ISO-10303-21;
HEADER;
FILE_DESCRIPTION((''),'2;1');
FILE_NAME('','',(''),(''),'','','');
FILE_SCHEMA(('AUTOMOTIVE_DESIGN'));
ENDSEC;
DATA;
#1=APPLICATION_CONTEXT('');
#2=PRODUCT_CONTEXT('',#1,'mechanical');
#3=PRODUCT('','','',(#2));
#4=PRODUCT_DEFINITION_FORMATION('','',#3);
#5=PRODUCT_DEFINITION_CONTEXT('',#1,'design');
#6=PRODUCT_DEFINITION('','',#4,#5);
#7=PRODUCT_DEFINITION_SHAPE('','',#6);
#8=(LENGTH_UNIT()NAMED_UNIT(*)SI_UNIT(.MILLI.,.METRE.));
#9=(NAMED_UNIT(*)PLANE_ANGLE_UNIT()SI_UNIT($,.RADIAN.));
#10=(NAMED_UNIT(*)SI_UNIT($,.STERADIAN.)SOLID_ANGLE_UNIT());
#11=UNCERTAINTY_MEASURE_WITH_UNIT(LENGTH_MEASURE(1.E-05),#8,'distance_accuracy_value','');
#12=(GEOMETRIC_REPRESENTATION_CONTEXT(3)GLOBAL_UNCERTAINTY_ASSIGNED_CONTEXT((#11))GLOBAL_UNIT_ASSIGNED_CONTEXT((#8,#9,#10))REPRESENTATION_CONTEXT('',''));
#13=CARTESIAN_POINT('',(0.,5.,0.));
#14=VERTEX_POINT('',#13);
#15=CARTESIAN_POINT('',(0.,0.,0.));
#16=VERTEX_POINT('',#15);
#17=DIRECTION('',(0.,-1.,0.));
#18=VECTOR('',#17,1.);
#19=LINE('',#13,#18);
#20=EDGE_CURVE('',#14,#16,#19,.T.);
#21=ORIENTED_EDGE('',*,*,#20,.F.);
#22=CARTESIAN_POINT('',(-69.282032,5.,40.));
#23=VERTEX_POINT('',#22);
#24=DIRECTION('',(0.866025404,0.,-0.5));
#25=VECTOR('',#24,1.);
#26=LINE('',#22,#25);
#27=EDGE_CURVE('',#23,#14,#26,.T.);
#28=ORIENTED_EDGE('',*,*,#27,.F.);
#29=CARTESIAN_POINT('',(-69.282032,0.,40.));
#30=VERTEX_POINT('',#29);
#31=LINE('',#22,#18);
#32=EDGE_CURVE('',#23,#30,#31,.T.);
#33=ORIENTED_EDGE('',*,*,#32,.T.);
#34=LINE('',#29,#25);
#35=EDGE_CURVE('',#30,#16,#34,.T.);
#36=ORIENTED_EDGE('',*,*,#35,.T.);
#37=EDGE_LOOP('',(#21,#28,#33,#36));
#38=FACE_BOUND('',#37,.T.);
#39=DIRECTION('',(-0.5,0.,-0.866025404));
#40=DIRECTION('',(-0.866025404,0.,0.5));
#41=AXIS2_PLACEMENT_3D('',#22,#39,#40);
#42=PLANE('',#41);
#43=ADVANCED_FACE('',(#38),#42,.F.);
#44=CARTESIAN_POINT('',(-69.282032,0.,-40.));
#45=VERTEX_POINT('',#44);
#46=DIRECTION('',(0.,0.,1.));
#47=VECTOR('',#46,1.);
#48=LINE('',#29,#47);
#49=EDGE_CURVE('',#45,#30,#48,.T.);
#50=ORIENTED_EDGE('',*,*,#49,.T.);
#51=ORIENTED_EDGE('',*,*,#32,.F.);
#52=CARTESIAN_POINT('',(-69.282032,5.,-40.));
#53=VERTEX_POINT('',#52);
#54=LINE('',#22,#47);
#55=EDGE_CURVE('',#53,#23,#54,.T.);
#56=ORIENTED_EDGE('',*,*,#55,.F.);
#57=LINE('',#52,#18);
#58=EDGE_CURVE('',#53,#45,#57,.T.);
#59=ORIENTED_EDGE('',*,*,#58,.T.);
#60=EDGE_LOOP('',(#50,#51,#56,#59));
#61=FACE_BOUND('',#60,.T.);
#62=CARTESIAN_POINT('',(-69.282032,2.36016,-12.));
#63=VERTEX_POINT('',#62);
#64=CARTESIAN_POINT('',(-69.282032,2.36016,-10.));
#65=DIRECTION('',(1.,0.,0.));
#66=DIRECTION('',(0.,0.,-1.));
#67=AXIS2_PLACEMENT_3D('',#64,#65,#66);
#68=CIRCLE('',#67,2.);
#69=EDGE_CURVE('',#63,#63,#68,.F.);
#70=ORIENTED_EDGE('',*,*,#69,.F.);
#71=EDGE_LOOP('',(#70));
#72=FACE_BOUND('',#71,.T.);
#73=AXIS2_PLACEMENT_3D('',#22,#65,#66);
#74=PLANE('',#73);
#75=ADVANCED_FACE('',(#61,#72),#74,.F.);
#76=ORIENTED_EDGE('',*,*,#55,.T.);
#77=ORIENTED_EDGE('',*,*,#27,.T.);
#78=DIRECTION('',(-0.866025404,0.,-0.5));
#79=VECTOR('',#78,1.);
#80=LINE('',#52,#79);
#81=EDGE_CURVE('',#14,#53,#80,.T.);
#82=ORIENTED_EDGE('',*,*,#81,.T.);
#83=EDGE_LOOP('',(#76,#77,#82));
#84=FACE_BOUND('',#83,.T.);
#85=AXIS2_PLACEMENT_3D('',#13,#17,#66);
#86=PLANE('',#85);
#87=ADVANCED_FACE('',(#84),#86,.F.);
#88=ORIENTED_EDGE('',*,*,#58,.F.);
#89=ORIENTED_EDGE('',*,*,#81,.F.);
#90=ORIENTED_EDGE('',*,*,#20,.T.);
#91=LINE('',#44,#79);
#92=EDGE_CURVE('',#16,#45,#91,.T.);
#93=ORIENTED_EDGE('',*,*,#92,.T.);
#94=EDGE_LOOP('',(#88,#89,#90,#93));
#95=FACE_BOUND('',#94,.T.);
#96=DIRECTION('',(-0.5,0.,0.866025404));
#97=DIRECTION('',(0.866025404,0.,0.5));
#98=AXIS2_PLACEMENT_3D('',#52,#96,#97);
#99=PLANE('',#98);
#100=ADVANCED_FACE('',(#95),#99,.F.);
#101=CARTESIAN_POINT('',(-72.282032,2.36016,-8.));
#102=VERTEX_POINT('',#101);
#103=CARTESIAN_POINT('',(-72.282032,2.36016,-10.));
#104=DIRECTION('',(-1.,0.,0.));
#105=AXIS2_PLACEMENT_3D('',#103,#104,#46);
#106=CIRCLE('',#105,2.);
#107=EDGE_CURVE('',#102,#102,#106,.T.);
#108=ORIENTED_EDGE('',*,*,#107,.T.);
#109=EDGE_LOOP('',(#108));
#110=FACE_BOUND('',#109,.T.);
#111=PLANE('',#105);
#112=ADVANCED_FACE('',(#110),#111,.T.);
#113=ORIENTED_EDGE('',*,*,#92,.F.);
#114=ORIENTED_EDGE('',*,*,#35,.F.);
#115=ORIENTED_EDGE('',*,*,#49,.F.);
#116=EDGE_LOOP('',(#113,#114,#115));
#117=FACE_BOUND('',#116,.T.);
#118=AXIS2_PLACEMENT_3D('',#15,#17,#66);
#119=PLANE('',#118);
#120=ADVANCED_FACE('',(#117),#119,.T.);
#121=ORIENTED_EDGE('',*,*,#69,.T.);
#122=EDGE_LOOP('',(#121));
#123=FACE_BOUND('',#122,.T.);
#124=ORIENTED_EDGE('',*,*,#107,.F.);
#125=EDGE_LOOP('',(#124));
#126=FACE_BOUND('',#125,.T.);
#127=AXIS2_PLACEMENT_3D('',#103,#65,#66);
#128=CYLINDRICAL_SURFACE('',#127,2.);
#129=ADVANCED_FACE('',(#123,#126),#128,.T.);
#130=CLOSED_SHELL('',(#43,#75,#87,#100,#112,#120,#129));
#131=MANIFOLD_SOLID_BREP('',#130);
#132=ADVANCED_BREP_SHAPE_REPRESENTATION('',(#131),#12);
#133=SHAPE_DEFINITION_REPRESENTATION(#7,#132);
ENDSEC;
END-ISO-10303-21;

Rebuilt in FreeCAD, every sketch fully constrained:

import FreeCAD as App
import Part
import Sketcher
Q = App.Units.Quantity


def add_polygon(sketch, points):
    """Adds a closed chain of lines whose ends are joined by coincident constraints."""
    first, n = sketch.GeometryCount, len(points)
    for a, b in zip(points, points[1:] + points[:1]):
        sketch.addGeometry(Part.LineSegment(App.Vector(*a, 0), App.Vector(*b, 0)), False)
    for i in range(n):
        sketch.addConstraint(Sketcher.Constraint("Coincident", first + i, 2, first + (i + 1) % n, 1))

doc = App.newDocument("Part")
body = doc.addObject("PartDesign::Body", "Body")

# Sketch on XZ plane
sketch1 = doc.addObject("Sketcher::SketchObject", "Sketch")
body.addObject(sketch1)
sketch1.AttachmentSupport = (doc.XZ_Plane, [""])
sketch1.MapMode = "FlatFace"
add_polygon(sketch1, [(0, 0), (-69, -40), (-69, 40)])  # lines 0-2
sketch1.addConstraint([
    Sketcher.Constraint("Vertical", 1),
    Sketcher.Constraint("Coincident", 2, 2, -1, 1),
    Sketcher.Constraint("Equal", 0, 2),
    Sketcher.Constraint("DistanceY", 1, 1, 1, 2, Q("80 mm")),
    Sketcher.Constraint("Angle", 0, Q("-150 deg")),
])
pad1 = doc.addObject("PartDesign::Pad", "Pad")
body.addObject(pad1)
pad1.Profile = sketch1
pad1.Length = 5
pad1.Reversed = True

# Sketch on YZ plane
sketch2 = doc.addObject("Sketcher::SketchObject", "Sketch001")
body.addObject(sketch2)
sketch2.AttachmentSupport = (doc.YZ_Plane, [""])
sketch2.MapMode = "FlatFace"
sketch2.AttachmentOffset = App.Placement(App.Vector(0, 0, -69.282032), App.Rotation())
sketch2.addGeometry(Part.Circle(App.Vector(2.4, -10, 0), App.Vector(0, 0, 1), 2), False)
sketch2.addConstraint([
    Sketcher.Constraint("Diameter", 0, Q("4 mm")),
    Sketcher.Constraint("DistanceY", 0, 3, -1, 1, Q("10 mm")),
    Sketcher.Constraint("DistanceX", -1, 1, 0, 3, Q("2.36016 mm")),
])
pad2 = doc.addObject("PartDesign::Pad", "Pad001")
body.addObject(pad2)
pad2.Profile = sketch2
pad2.Length = 3
pad2.Reversed = True

doc.recompute()
